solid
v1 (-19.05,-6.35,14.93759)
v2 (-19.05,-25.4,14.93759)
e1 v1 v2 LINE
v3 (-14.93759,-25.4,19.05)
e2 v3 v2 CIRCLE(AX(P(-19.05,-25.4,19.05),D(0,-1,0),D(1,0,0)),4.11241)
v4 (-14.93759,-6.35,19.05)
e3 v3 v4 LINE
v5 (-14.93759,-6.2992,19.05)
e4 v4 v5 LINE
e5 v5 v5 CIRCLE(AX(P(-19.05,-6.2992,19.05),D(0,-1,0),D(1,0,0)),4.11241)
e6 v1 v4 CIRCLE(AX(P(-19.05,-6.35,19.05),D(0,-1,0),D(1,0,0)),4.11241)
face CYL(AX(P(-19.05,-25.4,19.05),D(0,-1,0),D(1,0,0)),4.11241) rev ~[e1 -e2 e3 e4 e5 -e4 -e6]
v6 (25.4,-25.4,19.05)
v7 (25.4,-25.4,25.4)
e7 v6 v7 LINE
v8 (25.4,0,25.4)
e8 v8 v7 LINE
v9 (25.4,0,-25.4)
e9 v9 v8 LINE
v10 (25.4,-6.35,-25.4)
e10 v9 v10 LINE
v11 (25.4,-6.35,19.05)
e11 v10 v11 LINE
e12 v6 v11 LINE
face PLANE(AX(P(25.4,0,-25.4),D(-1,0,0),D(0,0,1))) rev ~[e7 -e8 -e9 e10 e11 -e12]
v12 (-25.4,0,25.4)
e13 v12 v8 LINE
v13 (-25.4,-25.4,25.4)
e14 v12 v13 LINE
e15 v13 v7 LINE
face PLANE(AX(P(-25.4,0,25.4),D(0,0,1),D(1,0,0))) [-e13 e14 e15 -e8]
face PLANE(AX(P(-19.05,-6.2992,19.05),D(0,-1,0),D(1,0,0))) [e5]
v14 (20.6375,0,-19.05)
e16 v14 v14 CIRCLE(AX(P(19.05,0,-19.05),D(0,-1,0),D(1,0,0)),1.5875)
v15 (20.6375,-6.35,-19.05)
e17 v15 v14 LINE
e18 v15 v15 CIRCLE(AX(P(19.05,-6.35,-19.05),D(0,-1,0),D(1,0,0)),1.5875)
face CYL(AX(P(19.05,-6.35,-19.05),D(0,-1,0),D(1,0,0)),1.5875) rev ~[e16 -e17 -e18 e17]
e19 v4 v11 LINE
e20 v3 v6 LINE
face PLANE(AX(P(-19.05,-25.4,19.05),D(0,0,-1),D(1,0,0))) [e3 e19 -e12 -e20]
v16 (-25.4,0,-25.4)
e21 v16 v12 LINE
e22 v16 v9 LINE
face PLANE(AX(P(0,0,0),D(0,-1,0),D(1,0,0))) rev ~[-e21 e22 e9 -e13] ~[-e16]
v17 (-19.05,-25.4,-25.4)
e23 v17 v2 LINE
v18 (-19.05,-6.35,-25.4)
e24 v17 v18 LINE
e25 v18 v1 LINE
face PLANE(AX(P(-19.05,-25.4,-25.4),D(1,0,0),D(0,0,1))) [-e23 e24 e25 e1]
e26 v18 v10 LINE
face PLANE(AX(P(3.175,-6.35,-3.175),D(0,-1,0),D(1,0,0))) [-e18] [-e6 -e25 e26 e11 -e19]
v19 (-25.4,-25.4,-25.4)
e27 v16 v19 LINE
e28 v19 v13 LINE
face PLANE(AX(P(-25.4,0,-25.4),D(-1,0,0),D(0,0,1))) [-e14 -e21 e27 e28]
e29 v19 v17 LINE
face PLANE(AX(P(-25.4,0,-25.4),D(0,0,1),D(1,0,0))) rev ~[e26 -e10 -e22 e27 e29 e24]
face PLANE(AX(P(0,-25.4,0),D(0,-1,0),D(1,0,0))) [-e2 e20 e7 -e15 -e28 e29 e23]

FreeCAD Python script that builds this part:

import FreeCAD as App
import Part
import Sketcher
from FreeCAD import Vector
Q = App.Units.Quantity

doc = App.newDocument("Part")
params = doc.addObject("Spreadsheet::Sheet", "Params")
for row, (alias, value) in enumerate([
    ("sketch1_width", "2 in"),
    ("pad1_length", "1 in"),
    ("sketch2_width", "1.75 in"),
    ("pocket1_length", "0.75 in"),
    ("pocket2_length", "0.752 in"),
    ("sketch4_diameter", "0.125 in"),
    ("pocket3_length", "0.25 in"),
], start=1):
    params.set(f"A{row}", alias)
    params.set(f"B{row}", "=" + value)
    params.setAlias(f"B{row}", alias)

body = doc.addObject("PartDesign::Body", "Body")

sketch1 = body.newObject("Sketcher::SketchObject", "Sketch")
sketch1.AttachmentSupport = (doc.getObject("XZ_Plane"), [""])
sketch1.MapMode = "FlatFace"
sketch1.addGeometry([
    Part.LineSegment(Vector(-25, 25, 0), Vector(-25, -25, 0)),
    Part.LineSegment(Vector(-25, -25, 0), Vector(25, -25, 0)),
    Part.LineSegment(Vector(25, -25, 0), Vector(25, 25, 0)),
    Part.LineSegment(Vector(25, 25, 0), Vector(-25, 25, 0)),
], False)
sketch1.addConstraint([
    Sketcher.Constraint("Coincident", 0, 2, 1, 1),
    Sketcher.Constraint("Coincident", 1, 2, 2, 1),
    Sketcher.Constraint("Coincident", 2, 2, 3, 1),
    Sketcher.Constraint("Coincident", 3, 2, 0, 1),
    Sketcher.Constraint("Vertical", 0),
    Sketcher.Constraint("Horizontal", 1),
    Sketcher.Constraint("Vertical", 2),
    Sketcher.Constraint("Horizontal", 3),
    Sketcher.Constraint("Symmetric", 0, 2, 2, 2, -1, 1),
    Sketcher.Constraint("Equal", 3, 0),
    Sketcher.Constraint("DistanceX", 1, 1, 1, 2, Q("2 in")),
])
sketch1.setExpression("Constraints[10]", "Params.sketch1_width")
pad1 = body.newObject("PartDesign::Pad", "Pad")
pad1.Profile = sketch1
pad1.setExpression("Length", "Params.pad1_length")

sketch2 = body.newObject("Sketcher::SketchObject", "Sketch001")
sketch2.AttachmentSupport = (doc.getObject("XZ_Plane"), [""])
sketch2.MapMode = "FlatFace"
sketch2.AttachmentOffset = App.Placement(Vector(0, 0, 1 * 25.4), App.Rotation())
sketch2.addGeometry([
    Part.LineSegment(Vector(-19, 19, 0), Vector(-19, -25, 0)),
    Part.LineSegment(Vector(-19, -25, 0), Vector(25, -25, 0)),
    Part.LineSegment(Vector(25, -25, 0), Vector(25, 19, 0)),
    Part.LineSegment(Vector(25, 19, 0), Vector(-19, 19, 0)),
], False)
sketch2.addConstraint([
    Sketcher.Constraint("Coincident", 0, 2, 1, 1),
    Sketcher.Constraint("Coincident", 1, 2, 2, 1),
    Sketcher.Constraint("Coincident", 2, 2, 3, 1),
    Sketcher.Constraint("Coincident", 3, 2, 0, 1),
    Sketcher.Constraint("Vertical", 0),
    Sketcher.Constraint("Horizontal", 1),
    Sketcher.Constraint("Vertical", 2),
    Sketcher.Constraint("Horizontal", 3),
    Sketcher.Constraint("Equal", 3, 0),
    Sketcher.Constraint("DistanceY", 0, 2, -1, 1, Q("1 in")),
    Sketcher.Constraint("DistanceX", -1, 1, 1, 2, Q("1 in")),
    Sketcher.Constraint("DistanceX", 1, 1, 1, 2, Q("1.75 in")),
])
sketch2.setExpression("Constraints[11]", "Params.sketch2_width")
pocket1 = body.newObject("PartDesign::Pocket", "Pocket")
pocket1.Profile = sketch2
pocket1.setExpression("Length", "Params.pocket1_length")

sketch3 = body.newObject("Sketcher::SketchObject", "Sketch002")
sketch3.AttachmentSupport = (doc.getObject("XZ_Plane"), [""])
sketch3.MapMode = "FlatFace"
sketch3.AttachmentOffset = App.Placement(Vector(0, 0, 1 * 25.4), App.Rotation())
sketch3.addGeometry(Part.Circle(Vector(-19.1, 19.1, 0), Vector(0, 0, 1), 4.1), False)
sketch3.addConstraint([
    Sketcher.Constraint("DistanceX", 0, 3, -1, 1, Q("0.75 in")),
    Sketcher.Constraint("DistanceY", -1, 1, 0, 3, Q("0.75 in")),
    Sketcher.Constraint("Diameter", 0, 8.22482),
])
pocket2 = body.newObject("PartDesign::Pocket", "Pocket001")
pocket2.Profile = sketch3
pocket2.setExpression("Length", "Params.pocket2_length")

sketch4 = body.newObject("Sketcher::SketchObject", "Sketch003")
sketch4.AttachmentSupport = (doc.getObject("XZ_Plane"), [""])
sketch4.MapMode = "FlatFace"
sketch4.AttachmentOffset = App.Placement(Vector(0, 0, 0.25 * 25.4), App.Rotation())
sketch4.addGeometry(Part.Circle(Vector(19.1, -19.1, 0), Vector(0, 0, 1), 1.6), False)
sketch4.addConstraint([
    Sketcher.Constraint("Diameter", 0, Q("0.125 in")),
    Sketcher.Constraint("DistanceX", -1, 1, 0, 3, Q("0.75 in")),
    Sketcher.Constraint("DistanceY", 0, 3, -1, 1, Q("0.75 in")),
])
sketch4.setExpression("Constraints[0]", "Params.sketch4_diameter")
pocket3 = body.newObject("PartDesign::Pocket", "Pocket002")
pocket3.Profile = sketch4
pocket3.setExpression("Length", "Params.pocket3_length")

doc.recompute()
